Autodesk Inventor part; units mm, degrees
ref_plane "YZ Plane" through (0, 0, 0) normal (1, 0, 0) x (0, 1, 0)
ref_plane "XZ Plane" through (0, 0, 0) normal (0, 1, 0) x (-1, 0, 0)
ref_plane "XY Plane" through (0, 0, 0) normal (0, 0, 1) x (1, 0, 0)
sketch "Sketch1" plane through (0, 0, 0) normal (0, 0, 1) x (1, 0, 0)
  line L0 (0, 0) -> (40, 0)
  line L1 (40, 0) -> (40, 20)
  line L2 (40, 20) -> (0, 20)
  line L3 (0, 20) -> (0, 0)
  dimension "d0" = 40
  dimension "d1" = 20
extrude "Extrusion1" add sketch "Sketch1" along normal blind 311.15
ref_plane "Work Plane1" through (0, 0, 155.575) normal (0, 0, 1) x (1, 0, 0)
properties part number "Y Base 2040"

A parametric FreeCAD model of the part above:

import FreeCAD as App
import Part
import Sketcher
Q = App.Units.Quantity


def add_polygon(sketch, points):
    """Adds a closed chain of lines whose ends are joined by coincident constraints."""
    first, n = sketch.GeometryCount, len(points)
    for a, b in zip(points, points[1:] + points[:1]):
        sketch.addGeometry(Part.LineSegment(App.Vector(*a, 0), App.Vector(*b, 0)), False)
    for i in range(n):
        sketch.addConstraint(Sketcher.Constraint("Coincident", first + i, 2, first + (i + 1) % n, 1))

doc = App.newDocument("Part")
body = doc.addObject("PartDesign::Body", "Body")

# Sketch on XY plane
sketch1 = doc.addObject("Sketcher::SketchObject", "Sketch")
body.addObject(sketch1)
sketch1.AttachmentSupport = (doc.XY_Plane, [""])
sketch1.MapMode = "FlatFace"
add_polygon(sketch1, [(0, 20), (0, 0), (40, 0), (40, 20)])  # lines 0-3
sketch1.addConstraint(Sketcher.Constraint("Vertical", 0))
sketch1.addConstraint(Sketcher.Constraint("Horizontal", 1))
sketch1.addConstraint(Sketcher.Constraint("Vertical", 2))
sketch1.addConstraint(Sketcher.Constraint("Horizontal", 3))
sketch1.addConstraint(Sketcher.Constraint("Coincident", 0, 2, -1, 1))
sketch1.addConstraint(Sketcher.Constraint("DistanceX", 1, 1, 1, 2, Q("1.5748 in")))
sketch1.addConstraint(Sketcher.Constraint("DistanceY", 0, 2, 0, 1, Q("0.7874 in")))
pad1 = doc.addObject("PartDesign::Pad", "Pad")
body.addObject(pad1)
pad1.Profile = sketch1
pad1.Length = Q("12.25 in")

doc.recompute()
